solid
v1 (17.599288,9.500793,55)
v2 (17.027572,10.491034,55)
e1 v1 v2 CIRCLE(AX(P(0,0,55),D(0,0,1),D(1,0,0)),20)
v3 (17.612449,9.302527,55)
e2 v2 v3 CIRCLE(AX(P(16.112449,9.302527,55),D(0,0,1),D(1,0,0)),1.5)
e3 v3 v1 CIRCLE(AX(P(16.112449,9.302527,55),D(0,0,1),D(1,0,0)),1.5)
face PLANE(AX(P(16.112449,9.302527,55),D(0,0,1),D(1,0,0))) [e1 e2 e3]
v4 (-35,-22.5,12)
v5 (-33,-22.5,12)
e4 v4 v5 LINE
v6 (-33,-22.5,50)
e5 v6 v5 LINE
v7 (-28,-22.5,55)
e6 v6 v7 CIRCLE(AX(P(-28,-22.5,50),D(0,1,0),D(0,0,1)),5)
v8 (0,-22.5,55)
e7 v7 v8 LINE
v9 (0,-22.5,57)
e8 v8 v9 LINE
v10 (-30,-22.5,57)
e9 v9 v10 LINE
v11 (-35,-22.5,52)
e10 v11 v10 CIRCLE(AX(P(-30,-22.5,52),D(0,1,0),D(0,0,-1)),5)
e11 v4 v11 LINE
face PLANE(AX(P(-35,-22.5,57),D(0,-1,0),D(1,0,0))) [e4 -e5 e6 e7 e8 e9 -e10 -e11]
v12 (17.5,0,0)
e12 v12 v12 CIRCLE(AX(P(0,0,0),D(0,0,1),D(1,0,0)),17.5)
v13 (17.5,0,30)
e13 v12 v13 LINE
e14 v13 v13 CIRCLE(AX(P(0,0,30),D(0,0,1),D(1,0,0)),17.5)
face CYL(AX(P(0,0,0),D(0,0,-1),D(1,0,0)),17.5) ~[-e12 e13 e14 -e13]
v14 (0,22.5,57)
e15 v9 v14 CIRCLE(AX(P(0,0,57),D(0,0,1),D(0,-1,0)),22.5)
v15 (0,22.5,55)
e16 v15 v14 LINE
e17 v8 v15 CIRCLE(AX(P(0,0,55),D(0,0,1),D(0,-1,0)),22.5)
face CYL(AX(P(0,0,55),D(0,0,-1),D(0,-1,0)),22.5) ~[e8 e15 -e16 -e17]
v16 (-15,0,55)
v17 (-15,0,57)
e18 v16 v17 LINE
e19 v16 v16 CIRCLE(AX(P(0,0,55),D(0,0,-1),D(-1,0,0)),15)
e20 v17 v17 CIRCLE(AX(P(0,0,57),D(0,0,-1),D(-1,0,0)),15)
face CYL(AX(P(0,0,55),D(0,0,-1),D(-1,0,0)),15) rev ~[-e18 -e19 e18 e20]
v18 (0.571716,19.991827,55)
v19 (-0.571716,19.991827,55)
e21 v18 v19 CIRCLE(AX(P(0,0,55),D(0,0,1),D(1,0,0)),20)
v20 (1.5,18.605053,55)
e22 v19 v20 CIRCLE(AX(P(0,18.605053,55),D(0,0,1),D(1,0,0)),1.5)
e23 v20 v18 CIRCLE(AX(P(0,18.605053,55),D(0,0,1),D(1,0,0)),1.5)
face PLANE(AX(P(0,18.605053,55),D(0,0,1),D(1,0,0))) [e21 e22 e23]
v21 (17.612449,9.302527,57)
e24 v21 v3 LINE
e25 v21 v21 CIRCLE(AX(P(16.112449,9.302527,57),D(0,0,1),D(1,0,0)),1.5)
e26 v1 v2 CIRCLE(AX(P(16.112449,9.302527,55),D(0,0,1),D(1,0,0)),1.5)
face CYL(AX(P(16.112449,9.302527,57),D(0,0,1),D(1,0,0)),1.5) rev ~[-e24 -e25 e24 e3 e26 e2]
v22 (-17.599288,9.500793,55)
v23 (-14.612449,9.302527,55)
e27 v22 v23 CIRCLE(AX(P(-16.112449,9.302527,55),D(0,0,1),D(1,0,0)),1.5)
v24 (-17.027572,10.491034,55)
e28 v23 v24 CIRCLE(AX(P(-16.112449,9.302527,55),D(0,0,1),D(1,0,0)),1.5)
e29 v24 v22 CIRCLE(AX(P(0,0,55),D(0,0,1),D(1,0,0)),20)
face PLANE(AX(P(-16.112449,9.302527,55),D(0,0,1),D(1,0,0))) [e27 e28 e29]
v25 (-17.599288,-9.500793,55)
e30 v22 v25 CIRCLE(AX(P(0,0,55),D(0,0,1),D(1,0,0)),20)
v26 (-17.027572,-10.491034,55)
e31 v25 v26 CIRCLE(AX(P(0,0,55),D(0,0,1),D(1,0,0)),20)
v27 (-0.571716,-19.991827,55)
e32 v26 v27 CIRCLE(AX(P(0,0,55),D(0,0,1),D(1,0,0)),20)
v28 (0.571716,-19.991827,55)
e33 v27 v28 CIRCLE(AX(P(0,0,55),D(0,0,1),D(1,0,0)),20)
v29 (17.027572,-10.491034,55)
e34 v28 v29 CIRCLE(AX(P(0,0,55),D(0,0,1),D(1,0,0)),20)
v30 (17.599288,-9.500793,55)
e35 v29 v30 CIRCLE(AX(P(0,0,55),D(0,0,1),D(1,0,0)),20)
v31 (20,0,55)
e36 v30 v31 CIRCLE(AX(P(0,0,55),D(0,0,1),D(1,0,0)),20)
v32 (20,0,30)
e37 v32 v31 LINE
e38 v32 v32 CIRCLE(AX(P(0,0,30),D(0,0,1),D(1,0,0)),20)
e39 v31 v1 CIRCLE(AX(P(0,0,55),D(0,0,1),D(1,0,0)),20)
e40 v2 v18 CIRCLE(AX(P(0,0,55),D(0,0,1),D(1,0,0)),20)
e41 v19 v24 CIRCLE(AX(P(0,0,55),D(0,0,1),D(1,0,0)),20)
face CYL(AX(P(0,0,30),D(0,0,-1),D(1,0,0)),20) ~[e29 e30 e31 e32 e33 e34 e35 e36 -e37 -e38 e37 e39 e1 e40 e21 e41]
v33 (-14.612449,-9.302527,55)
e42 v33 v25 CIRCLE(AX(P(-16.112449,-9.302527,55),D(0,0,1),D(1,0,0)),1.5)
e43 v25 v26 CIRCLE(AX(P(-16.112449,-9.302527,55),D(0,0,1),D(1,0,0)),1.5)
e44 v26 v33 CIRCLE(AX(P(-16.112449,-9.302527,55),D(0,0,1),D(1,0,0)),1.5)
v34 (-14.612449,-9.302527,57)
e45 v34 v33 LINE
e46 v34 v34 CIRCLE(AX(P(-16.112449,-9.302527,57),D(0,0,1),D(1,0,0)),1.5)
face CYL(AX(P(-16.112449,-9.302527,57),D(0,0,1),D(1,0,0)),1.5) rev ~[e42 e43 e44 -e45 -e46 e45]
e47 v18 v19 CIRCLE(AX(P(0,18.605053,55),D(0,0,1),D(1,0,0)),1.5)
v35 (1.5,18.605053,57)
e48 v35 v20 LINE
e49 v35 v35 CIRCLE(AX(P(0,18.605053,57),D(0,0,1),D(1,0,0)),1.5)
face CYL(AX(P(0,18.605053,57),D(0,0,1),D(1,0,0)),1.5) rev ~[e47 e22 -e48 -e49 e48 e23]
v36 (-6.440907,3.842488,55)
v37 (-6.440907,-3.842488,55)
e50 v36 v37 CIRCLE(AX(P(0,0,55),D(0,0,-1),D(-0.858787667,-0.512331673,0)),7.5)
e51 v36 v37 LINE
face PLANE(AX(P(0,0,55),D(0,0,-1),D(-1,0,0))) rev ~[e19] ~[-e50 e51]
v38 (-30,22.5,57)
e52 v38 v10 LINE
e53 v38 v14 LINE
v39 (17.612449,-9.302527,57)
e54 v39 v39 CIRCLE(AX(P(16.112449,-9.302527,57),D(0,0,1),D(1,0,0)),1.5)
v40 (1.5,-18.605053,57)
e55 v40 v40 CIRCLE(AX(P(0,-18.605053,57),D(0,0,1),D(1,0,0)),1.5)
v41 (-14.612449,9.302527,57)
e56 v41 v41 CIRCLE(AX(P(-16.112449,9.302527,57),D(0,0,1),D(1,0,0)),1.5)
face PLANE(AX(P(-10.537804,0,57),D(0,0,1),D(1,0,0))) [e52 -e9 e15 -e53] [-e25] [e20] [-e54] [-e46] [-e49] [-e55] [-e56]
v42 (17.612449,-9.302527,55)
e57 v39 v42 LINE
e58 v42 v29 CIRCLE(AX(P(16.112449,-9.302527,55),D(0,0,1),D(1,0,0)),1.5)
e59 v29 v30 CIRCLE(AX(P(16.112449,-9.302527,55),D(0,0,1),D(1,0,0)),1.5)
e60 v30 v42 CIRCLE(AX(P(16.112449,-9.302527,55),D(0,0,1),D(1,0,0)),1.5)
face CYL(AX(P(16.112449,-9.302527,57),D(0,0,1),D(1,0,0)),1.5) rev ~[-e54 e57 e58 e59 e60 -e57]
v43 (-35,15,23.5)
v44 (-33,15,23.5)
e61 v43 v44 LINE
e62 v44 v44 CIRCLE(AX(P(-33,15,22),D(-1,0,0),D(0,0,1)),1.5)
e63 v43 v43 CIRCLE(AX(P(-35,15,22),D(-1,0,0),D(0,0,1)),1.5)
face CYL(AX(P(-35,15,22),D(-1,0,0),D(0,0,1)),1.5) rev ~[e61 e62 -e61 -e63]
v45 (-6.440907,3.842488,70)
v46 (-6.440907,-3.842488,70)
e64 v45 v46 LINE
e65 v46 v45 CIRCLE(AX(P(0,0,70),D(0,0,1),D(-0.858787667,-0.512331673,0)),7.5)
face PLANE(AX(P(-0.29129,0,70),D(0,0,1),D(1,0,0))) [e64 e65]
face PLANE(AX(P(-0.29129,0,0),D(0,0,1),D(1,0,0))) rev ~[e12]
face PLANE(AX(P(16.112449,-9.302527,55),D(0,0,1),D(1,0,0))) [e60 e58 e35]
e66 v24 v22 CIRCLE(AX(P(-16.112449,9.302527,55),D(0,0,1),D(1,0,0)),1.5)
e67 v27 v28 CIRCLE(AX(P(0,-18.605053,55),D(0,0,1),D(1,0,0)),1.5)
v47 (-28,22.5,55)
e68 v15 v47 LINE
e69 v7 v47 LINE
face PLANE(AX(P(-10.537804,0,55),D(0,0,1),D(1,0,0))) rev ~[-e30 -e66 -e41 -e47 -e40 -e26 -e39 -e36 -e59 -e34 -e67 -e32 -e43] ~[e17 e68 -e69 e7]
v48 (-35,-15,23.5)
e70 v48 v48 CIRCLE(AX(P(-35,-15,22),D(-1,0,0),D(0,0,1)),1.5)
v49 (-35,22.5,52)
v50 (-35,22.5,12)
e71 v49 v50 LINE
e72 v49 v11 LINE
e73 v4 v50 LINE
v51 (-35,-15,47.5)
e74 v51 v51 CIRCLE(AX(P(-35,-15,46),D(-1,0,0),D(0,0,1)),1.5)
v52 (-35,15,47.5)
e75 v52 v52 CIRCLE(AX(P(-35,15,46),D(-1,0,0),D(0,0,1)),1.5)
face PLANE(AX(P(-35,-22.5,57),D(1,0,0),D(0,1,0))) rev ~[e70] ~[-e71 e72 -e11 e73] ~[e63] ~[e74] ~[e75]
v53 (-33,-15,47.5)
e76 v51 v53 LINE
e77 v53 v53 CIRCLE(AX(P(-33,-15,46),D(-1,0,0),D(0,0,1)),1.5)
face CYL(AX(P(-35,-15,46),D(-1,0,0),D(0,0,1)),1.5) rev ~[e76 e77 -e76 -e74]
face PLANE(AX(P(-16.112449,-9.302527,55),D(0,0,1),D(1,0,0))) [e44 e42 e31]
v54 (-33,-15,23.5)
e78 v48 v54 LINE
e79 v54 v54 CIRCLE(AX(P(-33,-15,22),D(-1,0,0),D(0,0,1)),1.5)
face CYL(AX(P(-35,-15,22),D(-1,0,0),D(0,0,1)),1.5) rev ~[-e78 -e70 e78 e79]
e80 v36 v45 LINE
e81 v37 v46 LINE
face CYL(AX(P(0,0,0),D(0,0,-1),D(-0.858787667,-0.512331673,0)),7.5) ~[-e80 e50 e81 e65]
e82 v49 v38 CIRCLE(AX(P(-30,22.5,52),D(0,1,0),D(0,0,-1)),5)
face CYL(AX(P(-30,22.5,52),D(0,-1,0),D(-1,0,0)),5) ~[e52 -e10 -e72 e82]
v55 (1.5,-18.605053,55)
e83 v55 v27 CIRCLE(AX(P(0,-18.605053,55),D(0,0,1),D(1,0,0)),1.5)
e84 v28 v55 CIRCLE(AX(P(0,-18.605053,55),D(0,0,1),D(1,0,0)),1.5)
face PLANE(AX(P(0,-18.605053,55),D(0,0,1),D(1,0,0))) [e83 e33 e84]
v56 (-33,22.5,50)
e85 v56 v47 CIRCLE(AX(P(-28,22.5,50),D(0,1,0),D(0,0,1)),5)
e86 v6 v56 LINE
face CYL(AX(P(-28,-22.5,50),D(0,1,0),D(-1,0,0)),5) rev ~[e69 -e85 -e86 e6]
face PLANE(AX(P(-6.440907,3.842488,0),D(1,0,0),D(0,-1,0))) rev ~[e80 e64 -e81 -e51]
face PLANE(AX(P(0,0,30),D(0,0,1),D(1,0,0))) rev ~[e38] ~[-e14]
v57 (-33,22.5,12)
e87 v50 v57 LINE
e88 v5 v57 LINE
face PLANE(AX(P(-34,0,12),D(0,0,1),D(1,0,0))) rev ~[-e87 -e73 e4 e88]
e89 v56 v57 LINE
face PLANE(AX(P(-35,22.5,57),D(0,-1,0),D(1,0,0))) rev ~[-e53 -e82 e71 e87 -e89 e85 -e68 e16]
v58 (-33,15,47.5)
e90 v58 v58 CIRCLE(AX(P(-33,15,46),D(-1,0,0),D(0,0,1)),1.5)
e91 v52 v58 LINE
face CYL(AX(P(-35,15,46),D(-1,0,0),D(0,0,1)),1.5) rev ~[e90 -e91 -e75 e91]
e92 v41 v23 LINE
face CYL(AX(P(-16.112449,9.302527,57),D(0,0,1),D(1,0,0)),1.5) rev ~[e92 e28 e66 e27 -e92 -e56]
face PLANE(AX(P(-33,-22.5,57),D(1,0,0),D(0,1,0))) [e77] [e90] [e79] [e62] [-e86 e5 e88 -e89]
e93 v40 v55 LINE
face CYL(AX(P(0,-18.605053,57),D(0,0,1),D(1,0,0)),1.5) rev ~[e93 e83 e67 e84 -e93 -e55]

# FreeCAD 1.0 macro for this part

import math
import FreeCAD as App
import Part
import Sketcher
from FreeCAD import Vector


def edges_at(feature, points):
    """Names of the edges that pass closest to the given points."""
    edges = feature.Shape.Edges
    near = lambda p: min(range(len(edges)), key=lambda i: edges[i].distToShape(Part.Vertex(*p))[0])
    return sorted({f"Edge{near(p) + 1}" for p in points})

doc = App.newDocument("Part")
params = doc.addObject("Spreadsheet::Sheet", "Params")
for row, (alias, value) in enumerate([
    ("sketch1_diameter", "35 mm"),
    ("pad1_length", "30 mm"),
    ("sketch2_diameter", "40 mm"),
    ("pad2_length", "25 mm"),
    ("sketch3_radius", "22.5 mm"),
    ("sketch3_width", "35 mm"),
    ("pad3_length", "2 mm"),
    ("sketch4_width", "2 mm"),
    ("sketch4_height", "45 mm"),
    ("pad4_length", "45 mm"),
    ("fillet_radius", "5 mm"),
    ("sketch5_diameter", "3 mm"),
    ("pocket1_length", "5 mm"),
    ("sketch6_diameter", "30 mm"),
    ("pocket2_length", "10 mm"),
    ("sketch7_radius", "7.5 mm"),
    ("pad5_length", "70 mm"),
    ("sketch8_diameter", "3 mm"),
    ("pocket3_length", "2 mm"),
], start=1):
    params.set(f"A{row}", alias)
    params.set(f"B{row}", "=" + value)
    params.setAlias(f"B{row}", alias)

body = doc.addObject("PartDesign::Body", "Body")

sketch1 = doc.addObject("Sketcher::SketchObject", "Sketch")
body.addObject(sketch1)
sketch1.AttachmentSupport = (doc.XY_Plane, [""])
sketch1.MapMode = "FlatFace"
sketch1.addGeometry(Part.Circle(Vector(0, 0, 0), Vector(0, 0, 1), 18), False)
sketch1.addConstraint(Sketcher.Constraint("Coincident", 0, 3, -1, 1))
sketch1.addConstraint(Sketcher.Constraint("Diameter", 0, 35.0))
sketch1.setExpression("Constraints[1]", "Params.sketch1_diameter")
pad1 = doc.addObject("PartDesign::Pad", "Pad")
body.addObject(pad1)
pad1.Profile = sketch1
pad1.setExpression("Length", "Params.pad1_length")

sketch2 = doc.addObject("Sketcher::SketchObject", "Sketch001")
body.addObject(sketch2)
sketch2.AttachmentSupport = (doc.XY_Plane, [""])
sketch2.MapMode = "FlatFace"
sketch2.AttachmentOffset = App.Placement(Vector(0, 0, 30), App.Rotation())
sketch2.addGeometry(Part.Circle(Vector(0, 0, 0), Vector(0, 0, 1), 20), False)
sketch2.addConstraint(Sketcher.Constraint("Coincident", 0, 3, -1, 1))
sketch2.addConstraint(Sketcher.Constraint("Diameter", 0, 40.0))
sketch2.setExpression("Constraints[1]", "Params.sketch2_diameter")
pad2 = doc.addObject("PartDesign::Pad", "Pad001")
body.addObject(pad2)
pad2.Profile = sketch2
pad2.setExpression("Length", "Params.pad2_length")

sketch3 = doc.addObject("Sketcher::SketchObject", "Sketch002")
body.addObject(sketch3)
sketch3.AttachmentSupport = (doc.XY_Plane, [""])
sketch3.MapMode = "FlatFace"
sketch3.AttachmentOffset = App.Placement(Vector(0, 0, 55), App.Rotation())
sketch3.addGeometry(Part.LineSegment(Vector(0, 22, 0), Vector(-35, 22, 0)), False)
sketch3.addGeometry(Part.LineSegment(Vector(-35, 22, 0), Vector(-35, -22, 0)), False)
sketch3.addGeometry(Part.LineSegment(Vector(-35, -22, 0), Vector(0, -22, 0)), False)
sketch3.addGeometry(Part.ArcOfCircle(Part.Circle(Vector(0, 0, 0), Vector(0, 0, 1), 22), math.radians(-90), math.radians(90)), False)
sketch3.addConstraint(Sketcher.Constraint("Coincident", 0, 2, 1, 1))
sketch3.addConstraint(Sketcher.Constraint("Coincident", 1, 2, 2, 1))
sketch3.addConstraint(Sketcher.Constraint("Tangent", 2, 2, 3, 1))
sketch3.addConstraint(Sketcher.Constraint("Tangent", 3, 2, 0, 1))
sketch3.addConstraint(Sketcher.Constraint("Horizontal", 0))
sketch3.addConstraint(Sketcher.Constraint("Vertical", 1))
sketch3.addConstraint(Sketcher.Constraint("Horizontal", 2))
sketch3.addConstraint(Sketcher.Constraint("Coincident", 3, 3, -1, 1))
sketch3.addConstraint(Sketcher.Constraint("Radius", 3, 22.5))
sketch3.addConstraint(Sketcher.Constraint("DistanceX", 0, 2, 0, 1, 35.0))
sketch3.setExpression("Constraints[8]", "Params.sketch3_radius")
sketch3.setExpression("Constraints[9]", "Params.sketch3_width")
pad3 = doc.addObject("PartDesign::Pad", "Pad002")
body.addObject(pad3)
pad3.Profile = sketch3
pad3.setExpression("Length", "Params.pad3_length")

sketch4 = doc.addObject("Sketcher::SketchObject", "Sketch003")
body.addObject(sketch4)
sketch4.AttachmentSupport = (doc.XY_Plane, [""])
sketch4.MapMode = "FlatFace"
sketch4.AttachmentOffset = App.Placement(Vector(0, 0, 57), App.Rotation())
sketch4.addGeometry(Part.LineSegment(Vector(-35, 22.5, 0), Vector(-35, -22.5, 0)), False)
sketch4.addGeometry(Part.LineSegment(Vector(-35, -22.5, 0), Vector(-33, -22.5, 0)), False)
sketch4.addGeometry(Part.LineSegment(Vector(-33, -22.5, 0), Vector(-33, 22.5, 0)), False)
sketch4.addGeometry(Part.LineSegment(Vector(-33, 22.5, 0), Vector(-35, 22.5, 0)), False)
sketch4.addConstraint(Sketcher.Constraint("Coincident", 0, 2, 1, 1))
sketch4.addConstraint(Sketcher.Constraint("Coincident", 1, 2, 2, 1))
sketch4.addConstraint(Sketcher.Constraint("Coincident", 2, 2, 3, 1))
sketch4.addConstraint(Sketcher.Constraint("Coincident", 3, 2, 0, 1))
sketch4.addConstraint(Sketcher.Constraint("Vertical", 0))
sketch4.addConstraint(Sketcher.Constraint("Horizontal", 1))
sketch4.addConstraint(Sketcher.Constraint("Vertical", 2))
sketch4.addConstraint(Sketcher.Constraint("Horizontal", 3))
sketch4.addConstraint(Sketcher.Constraint("DistanceX", 1, 1, 1, 2, 2.0))
sketch4.addConstraint(Sketcher.Constraint("DistanceY", 0, 2, 0, 1, 45.0))
sketch4.addConstraint(Sketcher.Constraint("DistanceX", 0, 2, -1, 1, 35.0))
sketch4.addConstraint(Sketcher.Constraint("DistanceY", 0, 2, -1, 1, 22.5))
sketch4.setExpression("Constraints[8]", "Params.sketch4_width")
sketch4.setExpression("Constraints[9]", "Params.sketch4_height")
pad4 = doc.addObject("PartDesign::Pad", "Pad003")
body.addObject(pad4)
pad4.Profile = sketch4
pad4.setExpression("Length", "Params.pad4_length")
pad4.Reversed = True
doc.recompute()

fillet = doc.addObject("PartDesign::Fillet", "Fillet")
body.addObject(fillet)
fillet.Base = (pad4, edges_at(pad4, [(-35, 0, 57), (-33, 0, 55)]))
fillet.setExpression("Radius", "Params.fillet_radius")

sketch5 = doc.addObject("Sketcher::SketchObject", "Sketch004")
body.addObject(sketch5)
sketch5.AttachmentSupport = (doc.YZ_Plane, [""])
sketch5.MapMode = "FlatFace"
sketch5.AttachmentOffset = App.Placement(Vector(0, 0, -35), App.Rotation())
sketch5.addGeometry(Part.Circle(Vector(15, 22, 0), Vector(0, 0, 1), 1.5), False)
sketch5.addGeometry(Part.Circle(Vector(-15, 22, 0), Vector(0, 0, 1), 1.5), False)
sketch5.addGeometry(Part.Circle(Vector(15, 46, 0), Vector(0, 0, 1), 1.5), False)
sketch5.addGeometry(Part.Circle(Vector(-15, 46, 0), Vector(0, 0, 1), 1.5), False)
sketch5.addConstraint(Sketcher.Constraint("Equal", 0, 1))
sketch5.addConstraint(Sketcher.Constraint("Equal", 1, 2))
sketch5.addConstraint(Sketcher.Constraint("Equal", 2, 3))
sketch5.addConstraint(Sketcher.Constraint("Symmetric", 0, 3, 1, 3, -2))
sketch5.addConstraint(Sketcher.Constraint("Symmetric", 2, 3, 3, 3, -2))
sketch5.addConstraint(Sketcher.Constraint("Vertical", 0, 3, 2, 3))
sketch5.addConstraint(Sketcher.Constraint("Diameter", 0, 3.0))
sketch5.addConstraint(Sketcher.Constraint("DistanceX", -1, 1, 0, 3, 15.0))
sketch5.addConstraint(Sketcher.Constraint("DistanceY", -1, 1, 0, 3, 22.0))
sketch5.addConstraint(Sketcher.Constraint("DistanceY", -1, 1, 2, 3, 46.0))
sketch5.setExpression("Constraints[6]", "Params.sketch5_diameter")
pocket1 = doc.addObject("PartDesign::Pocket", "Pocket")
body.addObject(pocket1)
pocket1.Profile = sketch5
pocket1.setExpression("Length", "Params.pocket1_length")
pocket1.Reversed = True

sketch6 = doc.addObject("Sketcher::SketchObject", "Sketch005")
body.addObject(sketch6)
sketch6.AttachmentSupport = (doc.XY_Plane, [""])
sketch6.MapMode = "FlatFace"
sketch6.AttachmentOffset = App.Placement(Vector(0, 0, 55), App.Rotation())
sketch6.addGeometry(Part.Circle(Vector(0, 0, 0), Vector(0, 0, 1), 15), False)
sketch6.addConstraint(Sketcher.Constraint("Coincident", 0, 3, -1, 1))
sketch6.addConstraint(Sketcher.Constraint("Diameter", 0, 30.0))
sketch6.setExpression("Constraints[1]", "Params.sketch6_diameter")
pocket2 = doc.addObject("PartDesign::Pocket", "Pocket001")
body.addObject(pocket2)
pocket2.Profile = sketch6
pocket2.setExpression("Length", "Params.pocket2_length")
pocket2.Reversed = True

sketch7 = doc.addObject("Sketcher::SketchObject", "Sketch006")
body.addObject(sketch7)
sketch7.AttachmentSupport = (doc.XY_Plane, [""])
sketch7.MapMode = "FlatFace"
sketch7.addGeometry(Part.LineSegment(Vector(-6, -4, 0), Vector(-6, 4, 0)), False)
sketch7.addGeometry(Part.ArcOfCircle(Part.Circle(Vector(0, 0, 0), Vector(0, 0, 1), 8), math.radians(-149), math.radians(149)), False)
sketch7.addConstraint(Sketcher.Constraint("Coincident", 0, 1, 1, 1))
sketch7.addConstraint(Sketcher.Constraint("Coincident", 1, 2, 0, 2))
sketch7.addConstraint(Sketcher.Constraint("Vertical", 0))
sketch7.addConstraint(Sketcher.Constraint("Coincident", 1, 3, -1, 1))
sketch7.addConstraint(Sketcher.Constraint("Radius", 1, 7.5))
sketch7.addConstraint(Sketcher.Constraint("DistanceY", 0, 1, 0, 2, 7.684975))
sketch7.setExpression("Constraints[4]", "Params.sketch7_radius")
pad5 = doc.addObject("PartDesign::Pad", "Pad004")
body.addObject(pad5)
pad5.Profile = sketch7
pad5.setExpression("Length", "Params.pad5_length")

sketch8 = doc.addObject("Sketcher::SketchObject", "Sketch007")
body.addObject(sketch8)
sketch8.AttachmentSupport = (doc.XY_Plane, [""])
sketch8.MapMode = "FlatFace"
sketch8.AttachmentOffset = App.Placement(Vector(0, 0, 57), App.Rotation())
sketch8.addGeometry(Part.Circle(Vector(0, 18.6, 0), Vector(0, 0, 1), 1.5), False)
sketch8.addGeometry(Part.Circle(Vector(16.1, 9.3, 0), Vector(0, 0, 1), 1.5), False)
sketch8.addGeometry(Part.Circle(Vector(16.1, -9.3, 0), Vector(0, 0, 1), 1.5), False)
sketch8.addGeometry(Part.Circle(Vector(0, -18.6, 0), Vector(0, 0, 1), 1.5), False)
sketch8.addGeometry(Part.Circle(Vector(-16.1, -9.3, 0), Vector(0, 0, 1), 1.5), False)
sketch8.addGeometry(Part.Circle(Vector(-16.1, 9.3, 0), Vector(0, 0, 1), 1.5), False)
sketch8.addConstraint(Sketcher.Constraint("Equal", 0, 1))
sketch8.addConstraint(Sketcher.Constraint("Equal", 1, 2))
sketch8.addConstraint(Sketcher.Constraint("Equal", 2, 3))
sketch8.addConstraint(Sketcher.Constraint("Equal", 3, 4))
sketch8.addConstraint(Sketcher.Constraint("Equal", 4, 5))
sketch8.addConstraint(Sketcher.Constraint("Symmetric", 0, 3, 3, 3, -1, 1))
sketch8.addConstraint(Sketcher.Constraint("Symmetric", 1, 3, 4, 3, -1, 1))
sketch8.addConstraint(Sketcher.Constraint("Symmetric", 2, 3, 5, 3, -1, 1))
sketch8.addConstraint(Sketcher.Constraint("Symmetric", 2, 3, 4, 3, -2))
sketch8.addConstraint(Sketcher.Constraint("PointOnObject", 0, 3, -2))
sketch8.addConstraint(Sketcher.Constraint("Diameter", 0, 3.0))
sketch8.addConstraint(Sketcher.Constraint("DistanceX", -1, 1, 1, 3, 16.112449))
sketch8.addConstraint(Sketcher.Constraint("DistanceY", 2, 3, 0, 3, 27.90758))
sketch8.addConstraint(Sketcher.Constraint("DistanceY", -1, 1, 0, 3, 18.605053))
sketch8.setExpression("Constraints[10]", "Params.sketch8_diameter")
pocket3 = doc.addObject("PartDesign::Pocket", "Pocket002")
body.addObject(pocket3)
pocket3.Profile = sketch8
pocket3.setExpression("Length", "Params.pocket3_length")

doc.recompute()
